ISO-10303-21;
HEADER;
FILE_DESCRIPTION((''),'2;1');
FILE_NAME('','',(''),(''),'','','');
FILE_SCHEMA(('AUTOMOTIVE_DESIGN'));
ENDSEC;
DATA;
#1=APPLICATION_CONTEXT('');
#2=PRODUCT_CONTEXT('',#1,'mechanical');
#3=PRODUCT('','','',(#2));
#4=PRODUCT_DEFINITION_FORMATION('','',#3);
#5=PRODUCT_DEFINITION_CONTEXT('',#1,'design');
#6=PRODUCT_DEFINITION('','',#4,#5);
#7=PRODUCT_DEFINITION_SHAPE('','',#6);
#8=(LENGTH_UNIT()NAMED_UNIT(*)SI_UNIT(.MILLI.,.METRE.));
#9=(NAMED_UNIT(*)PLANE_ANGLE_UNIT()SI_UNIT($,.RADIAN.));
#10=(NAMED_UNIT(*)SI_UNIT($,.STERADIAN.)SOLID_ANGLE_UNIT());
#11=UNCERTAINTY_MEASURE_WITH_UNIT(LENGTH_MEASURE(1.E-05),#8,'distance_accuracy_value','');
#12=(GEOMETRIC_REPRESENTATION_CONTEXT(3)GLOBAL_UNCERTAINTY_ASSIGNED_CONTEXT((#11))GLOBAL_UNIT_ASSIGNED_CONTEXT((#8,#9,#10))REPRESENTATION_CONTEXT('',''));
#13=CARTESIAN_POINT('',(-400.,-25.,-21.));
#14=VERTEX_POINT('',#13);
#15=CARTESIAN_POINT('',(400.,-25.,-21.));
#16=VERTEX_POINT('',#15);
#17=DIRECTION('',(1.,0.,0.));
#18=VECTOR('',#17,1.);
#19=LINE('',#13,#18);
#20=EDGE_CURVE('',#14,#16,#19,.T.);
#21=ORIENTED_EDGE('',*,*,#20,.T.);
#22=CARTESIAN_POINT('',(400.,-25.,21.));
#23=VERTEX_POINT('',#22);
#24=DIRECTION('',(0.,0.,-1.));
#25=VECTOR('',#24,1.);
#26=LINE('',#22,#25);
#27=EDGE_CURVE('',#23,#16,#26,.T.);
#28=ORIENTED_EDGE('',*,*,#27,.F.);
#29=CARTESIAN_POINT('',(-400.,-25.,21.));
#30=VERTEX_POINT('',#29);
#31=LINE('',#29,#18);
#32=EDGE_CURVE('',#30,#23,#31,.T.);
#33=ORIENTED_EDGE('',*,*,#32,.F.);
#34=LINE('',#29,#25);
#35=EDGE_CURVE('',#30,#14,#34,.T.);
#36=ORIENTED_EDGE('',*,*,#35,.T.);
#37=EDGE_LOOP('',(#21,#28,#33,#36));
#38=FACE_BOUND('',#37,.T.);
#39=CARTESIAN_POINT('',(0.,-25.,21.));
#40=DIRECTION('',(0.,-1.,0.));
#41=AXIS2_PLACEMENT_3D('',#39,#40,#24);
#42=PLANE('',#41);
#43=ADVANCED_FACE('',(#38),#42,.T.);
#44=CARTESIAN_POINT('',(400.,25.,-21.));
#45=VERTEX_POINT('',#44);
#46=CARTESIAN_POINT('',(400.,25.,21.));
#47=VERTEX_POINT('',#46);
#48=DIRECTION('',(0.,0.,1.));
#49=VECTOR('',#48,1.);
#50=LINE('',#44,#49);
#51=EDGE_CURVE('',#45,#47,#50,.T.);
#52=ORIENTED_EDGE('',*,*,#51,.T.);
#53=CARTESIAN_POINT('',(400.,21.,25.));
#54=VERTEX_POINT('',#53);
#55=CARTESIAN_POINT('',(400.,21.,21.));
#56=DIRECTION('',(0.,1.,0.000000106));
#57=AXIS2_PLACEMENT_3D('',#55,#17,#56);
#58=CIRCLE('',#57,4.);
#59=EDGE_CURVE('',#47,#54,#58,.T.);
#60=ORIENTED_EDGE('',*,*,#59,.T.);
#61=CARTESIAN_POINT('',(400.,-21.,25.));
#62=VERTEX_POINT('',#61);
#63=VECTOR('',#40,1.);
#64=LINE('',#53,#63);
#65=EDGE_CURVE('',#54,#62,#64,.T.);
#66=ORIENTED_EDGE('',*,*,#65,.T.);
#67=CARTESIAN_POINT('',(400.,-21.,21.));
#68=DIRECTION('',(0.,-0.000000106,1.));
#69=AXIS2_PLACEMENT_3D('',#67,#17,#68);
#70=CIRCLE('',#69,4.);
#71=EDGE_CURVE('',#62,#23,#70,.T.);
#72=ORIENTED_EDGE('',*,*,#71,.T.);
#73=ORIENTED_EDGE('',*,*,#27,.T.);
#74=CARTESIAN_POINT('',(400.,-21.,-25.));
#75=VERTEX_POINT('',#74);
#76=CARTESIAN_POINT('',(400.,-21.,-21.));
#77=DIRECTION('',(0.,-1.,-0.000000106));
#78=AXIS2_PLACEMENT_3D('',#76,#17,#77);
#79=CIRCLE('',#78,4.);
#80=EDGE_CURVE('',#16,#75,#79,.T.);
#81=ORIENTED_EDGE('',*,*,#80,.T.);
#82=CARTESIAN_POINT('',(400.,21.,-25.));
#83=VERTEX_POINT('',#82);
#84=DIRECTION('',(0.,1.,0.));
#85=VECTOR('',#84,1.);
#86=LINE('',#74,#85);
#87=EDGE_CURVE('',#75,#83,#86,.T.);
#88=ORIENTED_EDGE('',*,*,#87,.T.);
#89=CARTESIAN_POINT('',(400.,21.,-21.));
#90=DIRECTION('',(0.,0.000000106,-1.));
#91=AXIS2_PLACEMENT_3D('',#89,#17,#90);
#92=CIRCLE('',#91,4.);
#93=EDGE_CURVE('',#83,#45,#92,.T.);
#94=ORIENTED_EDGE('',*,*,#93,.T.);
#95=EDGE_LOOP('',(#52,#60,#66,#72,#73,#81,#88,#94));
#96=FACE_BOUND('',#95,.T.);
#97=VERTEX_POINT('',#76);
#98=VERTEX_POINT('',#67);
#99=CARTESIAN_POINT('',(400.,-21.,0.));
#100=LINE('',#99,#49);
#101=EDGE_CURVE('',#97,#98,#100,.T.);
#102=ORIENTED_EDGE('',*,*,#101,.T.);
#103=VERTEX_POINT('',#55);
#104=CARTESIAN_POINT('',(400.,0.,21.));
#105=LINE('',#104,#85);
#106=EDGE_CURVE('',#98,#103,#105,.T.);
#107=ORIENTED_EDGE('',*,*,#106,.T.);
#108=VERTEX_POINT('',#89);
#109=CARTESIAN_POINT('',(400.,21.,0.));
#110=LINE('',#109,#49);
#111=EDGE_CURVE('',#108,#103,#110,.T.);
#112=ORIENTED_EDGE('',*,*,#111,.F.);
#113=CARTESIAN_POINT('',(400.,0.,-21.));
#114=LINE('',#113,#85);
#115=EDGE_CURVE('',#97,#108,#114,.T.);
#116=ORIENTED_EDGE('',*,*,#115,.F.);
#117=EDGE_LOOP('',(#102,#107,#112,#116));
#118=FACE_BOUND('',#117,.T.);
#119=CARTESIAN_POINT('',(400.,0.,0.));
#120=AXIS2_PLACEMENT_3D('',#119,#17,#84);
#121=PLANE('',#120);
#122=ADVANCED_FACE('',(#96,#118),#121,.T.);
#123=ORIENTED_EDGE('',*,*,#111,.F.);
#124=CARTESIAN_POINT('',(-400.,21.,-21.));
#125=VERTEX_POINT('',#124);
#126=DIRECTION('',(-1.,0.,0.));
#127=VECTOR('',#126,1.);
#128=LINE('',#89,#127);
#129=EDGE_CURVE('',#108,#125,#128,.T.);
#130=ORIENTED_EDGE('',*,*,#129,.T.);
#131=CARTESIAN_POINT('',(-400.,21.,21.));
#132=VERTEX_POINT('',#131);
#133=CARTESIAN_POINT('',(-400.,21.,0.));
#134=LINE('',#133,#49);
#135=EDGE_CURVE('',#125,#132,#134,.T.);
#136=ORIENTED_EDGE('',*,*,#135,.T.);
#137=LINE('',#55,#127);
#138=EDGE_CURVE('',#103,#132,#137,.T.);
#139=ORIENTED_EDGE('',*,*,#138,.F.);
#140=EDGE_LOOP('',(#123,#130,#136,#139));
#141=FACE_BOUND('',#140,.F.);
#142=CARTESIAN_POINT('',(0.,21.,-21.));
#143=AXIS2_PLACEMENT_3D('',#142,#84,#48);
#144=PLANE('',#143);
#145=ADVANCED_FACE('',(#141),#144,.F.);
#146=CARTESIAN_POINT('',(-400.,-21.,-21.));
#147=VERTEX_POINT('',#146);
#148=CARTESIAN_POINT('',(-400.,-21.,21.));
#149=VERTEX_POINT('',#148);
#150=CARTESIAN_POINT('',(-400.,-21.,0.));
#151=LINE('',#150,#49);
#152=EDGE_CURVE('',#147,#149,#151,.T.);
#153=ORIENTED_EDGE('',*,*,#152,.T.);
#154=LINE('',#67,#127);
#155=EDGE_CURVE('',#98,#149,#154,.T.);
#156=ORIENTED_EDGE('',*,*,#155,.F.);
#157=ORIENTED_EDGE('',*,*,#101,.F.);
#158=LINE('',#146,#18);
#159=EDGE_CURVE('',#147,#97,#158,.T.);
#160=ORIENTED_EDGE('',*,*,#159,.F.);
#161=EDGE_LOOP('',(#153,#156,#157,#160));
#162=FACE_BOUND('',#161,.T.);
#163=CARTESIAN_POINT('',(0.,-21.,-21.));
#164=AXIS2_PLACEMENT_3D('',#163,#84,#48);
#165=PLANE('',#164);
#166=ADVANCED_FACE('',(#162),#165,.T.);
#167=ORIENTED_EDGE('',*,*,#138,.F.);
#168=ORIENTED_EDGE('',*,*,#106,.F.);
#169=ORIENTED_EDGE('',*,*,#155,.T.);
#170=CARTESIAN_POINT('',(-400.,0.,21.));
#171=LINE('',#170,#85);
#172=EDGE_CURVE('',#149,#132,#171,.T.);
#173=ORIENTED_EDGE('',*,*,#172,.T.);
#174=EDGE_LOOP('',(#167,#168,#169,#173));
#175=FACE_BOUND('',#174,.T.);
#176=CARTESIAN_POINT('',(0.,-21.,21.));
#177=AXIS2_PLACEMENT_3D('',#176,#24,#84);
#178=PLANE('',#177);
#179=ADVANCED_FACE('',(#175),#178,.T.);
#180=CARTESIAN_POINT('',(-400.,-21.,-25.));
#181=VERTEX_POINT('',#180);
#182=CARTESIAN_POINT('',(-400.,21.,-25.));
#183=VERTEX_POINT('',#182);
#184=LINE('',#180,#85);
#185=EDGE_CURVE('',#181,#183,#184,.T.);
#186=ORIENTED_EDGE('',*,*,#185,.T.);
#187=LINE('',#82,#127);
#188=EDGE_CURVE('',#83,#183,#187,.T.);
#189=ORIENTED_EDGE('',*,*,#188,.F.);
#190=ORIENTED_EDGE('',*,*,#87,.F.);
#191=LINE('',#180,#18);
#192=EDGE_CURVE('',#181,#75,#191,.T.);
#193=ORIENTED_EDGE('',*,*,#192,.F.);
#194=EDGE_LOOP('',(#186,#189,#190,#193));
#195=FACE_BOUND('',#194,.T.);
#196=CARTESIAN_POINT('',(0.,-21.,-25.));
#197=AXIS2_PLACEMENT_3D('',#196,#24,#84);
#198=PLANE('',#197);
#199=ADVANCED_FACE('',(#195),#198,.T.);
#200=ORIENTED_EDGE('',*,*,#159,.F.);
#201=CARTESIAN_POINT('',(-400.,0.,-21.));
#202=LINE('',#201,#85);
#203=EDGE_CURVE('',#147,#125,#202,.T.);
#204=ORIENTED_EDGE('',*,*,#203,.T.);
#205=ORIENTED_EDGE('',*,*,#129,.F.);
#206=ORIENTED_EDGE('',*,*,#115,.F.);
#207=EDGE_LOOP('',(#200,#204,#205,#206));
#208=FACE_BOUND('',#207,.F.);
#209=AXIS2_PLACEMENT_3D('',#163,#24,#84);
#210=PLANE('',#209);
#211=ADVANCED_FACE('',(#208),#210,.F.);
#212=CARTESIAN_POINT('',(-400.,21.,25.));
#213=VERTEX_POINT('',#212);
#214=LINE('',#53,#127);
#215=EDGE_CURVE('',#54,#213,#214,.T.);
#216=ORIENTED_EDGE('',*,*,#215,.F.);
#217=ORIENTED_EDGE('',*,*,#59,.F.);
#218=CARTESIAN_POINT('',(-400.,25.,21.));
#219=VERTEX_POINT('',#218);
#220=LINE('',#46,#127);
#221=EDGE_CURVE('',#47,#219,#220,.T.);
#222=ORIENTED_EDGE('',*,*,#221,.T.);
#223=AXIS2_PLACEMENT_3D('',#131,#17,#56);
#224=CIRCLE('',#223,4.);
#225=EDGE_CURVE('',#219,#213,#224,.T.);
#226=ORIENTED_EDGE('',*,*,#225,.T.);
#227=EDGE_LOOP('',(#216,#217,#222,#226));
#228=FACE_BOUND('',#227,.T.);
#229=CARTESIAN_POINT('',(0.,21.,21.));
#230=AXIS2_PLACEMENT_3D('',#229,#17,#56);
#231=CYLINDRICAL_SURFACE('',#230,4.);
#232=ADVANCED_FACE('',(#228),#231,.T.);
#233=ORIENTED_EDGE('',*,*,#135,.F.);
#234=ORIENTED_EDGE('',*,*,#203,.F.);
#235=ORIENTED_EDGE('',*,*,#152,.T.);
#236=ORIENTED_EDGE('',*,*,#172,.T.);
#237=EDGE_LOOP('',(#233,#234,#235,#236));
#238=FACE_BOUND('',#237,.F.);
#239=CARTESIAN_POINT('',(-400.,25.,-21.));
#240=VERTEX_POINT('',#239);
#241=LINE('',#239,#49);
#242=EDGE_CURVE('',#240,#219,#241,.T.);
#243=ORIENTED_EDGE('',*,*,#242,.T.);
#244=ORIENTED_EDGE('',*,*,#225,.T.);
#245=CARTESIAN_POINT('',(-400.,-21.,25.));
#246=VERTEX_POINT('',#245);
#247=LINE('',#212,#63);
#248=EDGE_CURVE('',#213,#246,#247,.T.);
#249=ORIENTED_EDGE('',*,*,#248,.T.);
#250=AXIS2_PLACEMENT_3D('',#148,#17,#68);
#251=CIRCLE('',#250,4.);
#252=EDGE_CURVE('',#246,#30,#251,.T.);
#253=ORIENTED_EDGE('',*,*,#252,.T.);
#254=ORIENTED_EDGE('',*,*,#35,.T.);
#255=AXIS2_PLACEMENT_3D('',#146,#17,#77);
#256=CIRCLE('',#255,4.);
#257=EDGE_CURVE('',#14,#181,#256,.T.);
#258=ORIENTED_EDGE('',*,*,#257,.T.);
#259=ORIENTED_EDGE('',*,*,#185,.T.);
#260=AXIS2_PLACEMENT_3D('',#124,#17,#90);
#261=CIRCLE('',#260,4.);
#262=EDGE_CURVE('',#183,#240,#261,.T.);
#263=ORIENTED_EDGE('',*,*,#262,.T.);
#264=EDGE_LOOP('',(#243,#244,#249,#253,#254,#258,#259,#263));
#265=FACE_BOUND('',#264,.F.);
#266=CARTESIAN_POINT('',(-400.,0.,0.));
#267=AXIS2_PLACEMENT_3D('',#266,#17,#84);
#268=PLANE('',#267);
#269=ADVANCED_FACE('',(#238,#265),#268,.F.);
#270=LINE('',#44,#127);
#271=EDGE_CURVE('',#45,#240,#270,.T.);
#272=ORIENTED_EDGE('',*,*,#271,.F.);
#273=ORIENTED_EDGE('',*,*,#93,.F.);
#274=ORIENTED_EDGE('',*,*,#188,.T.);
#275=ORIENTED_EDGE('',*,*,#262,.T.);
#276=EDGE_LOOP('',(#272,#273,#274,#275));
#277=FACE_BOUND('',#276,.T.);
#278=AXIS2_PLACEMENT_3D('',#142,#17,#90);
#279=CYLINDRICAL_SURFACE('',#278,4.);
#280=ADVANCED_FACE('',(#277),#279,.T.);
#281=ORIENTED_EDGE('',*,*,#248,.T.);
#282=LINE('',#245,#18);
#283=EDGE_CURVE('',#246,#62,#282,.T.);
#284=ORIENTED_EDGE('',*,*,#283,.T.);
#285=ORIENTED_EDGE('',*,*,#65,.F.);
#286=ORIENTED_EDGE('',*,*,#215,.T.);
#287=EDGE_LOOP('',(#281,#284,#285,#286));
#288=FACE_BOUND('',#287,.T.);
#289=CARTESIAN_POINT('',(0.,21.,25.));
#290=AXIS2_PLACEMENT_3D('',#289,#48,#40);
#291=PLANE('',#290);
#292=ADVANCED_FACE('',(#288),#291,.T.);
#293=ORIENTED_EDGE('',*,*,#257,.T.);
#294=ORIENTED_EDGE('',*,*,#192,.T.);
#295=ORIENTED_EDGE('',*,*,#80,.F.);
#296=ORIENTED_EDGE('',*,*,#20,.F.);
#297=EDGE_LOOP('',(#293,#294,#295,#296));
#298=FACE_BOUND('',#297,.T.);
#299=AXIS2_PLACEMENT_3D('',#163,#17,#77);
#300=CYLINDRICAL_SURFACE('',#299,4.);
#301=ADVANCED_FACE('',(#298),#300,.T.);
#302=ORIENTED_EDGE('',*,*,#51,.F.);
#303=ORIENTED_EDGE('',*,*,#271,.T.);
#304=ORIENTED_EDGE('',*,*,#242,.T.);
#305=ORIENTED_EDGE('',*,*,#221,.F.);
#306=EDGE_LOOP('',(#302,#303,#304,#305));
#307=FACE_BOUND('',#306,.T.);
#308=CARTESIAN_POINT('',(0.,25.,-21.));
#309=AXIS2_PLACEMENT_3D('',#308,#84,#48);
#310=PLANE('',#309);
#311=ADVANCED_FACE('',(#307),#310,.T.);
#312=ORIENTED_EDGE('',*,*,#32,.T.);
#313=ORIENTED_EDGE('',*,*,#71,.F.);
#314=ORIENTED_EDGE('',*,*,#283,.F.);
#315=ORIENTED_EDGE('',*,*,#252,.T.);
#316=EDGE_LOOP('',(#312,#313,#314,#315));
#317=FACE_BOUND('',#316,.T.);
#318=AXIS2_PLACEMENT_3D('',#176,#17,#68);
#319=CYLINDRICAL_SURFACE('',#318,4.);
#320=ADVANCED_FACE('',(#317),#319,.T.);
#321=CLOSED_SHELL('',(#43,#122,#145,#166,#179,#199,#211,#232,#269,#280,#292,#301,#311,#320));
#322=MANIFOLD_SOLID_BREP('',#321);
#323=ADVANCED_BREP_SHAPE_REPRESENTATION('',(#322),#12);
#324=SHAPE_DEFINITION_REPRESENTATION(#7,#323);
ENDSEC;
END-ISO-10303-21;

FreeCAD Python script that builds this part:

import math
import FreeCAD as App
import Part
import Sketcher
from FreeCAD import Vector

doc = App.newDocument("Part")
params = doc.addObject("Spreadsheet::Sheet", "Params")
for row, (alias, value) in enumerate([
    ("sketch1_radius", "4 mm"),
    ("sketch1_width", "42 mm"),
    ("pad1_length", "800 mm"),
], start=1):
    params.set(f"A{row}", alias)
    params.set(f"B{row}", "=" + value)
    params.setAlias(f"B{row}", alias)

body = doc.addObject("PartDesign::Body", "Body")

# Sketch on YZ plane
sketch1 = body.newObject("Sketcher::SketchObject", "Sketch")
sketch1.AttachmentSupport = (doc.getObject("YZ_Plane"), [""])
sketch1.MapMode = "FlatFace"
sketch1.addGeometry([
    Part.LineSegment(Vector(21, 25, 0), Vector(-21, 25, 0)),  # 0
    Part.ArcOfCircle(Part.Circle(Vector(-21, 21, 0), Vector(0, 0, 1), 4), math.radians(90), math.radians(180)),  # 1
    Part.LineSegment(Vector(-25, 21, 0), Vector(-25, -21, 0)),  # 2
    Part.ArcOfCircle(Part.Circle(Vector(-21, -21, 0), Vector(0, 0, 1), 4), math.radians(-180), math.radians(-90)),  # 3
    Part.LineSegment(Vector(-21, -25, 0), Vector(21, -25, 0)),  # 4
    Part.ArcOfCircle(Part.Circle(Vector(21, -21, 0), Vector(0, 0, 1), 4), math.radians(-90), math.radians(0)),  # 5
    Part.LineSegment(Vector(25, -21, 0), Vector(25, 21, 0)),  # 6
    Part.ArcOfCircle(Part.Circle(Vector(21, 21, 0), Vector(0, 0, 1), 4), math.radians(0), math.radians(90)),  # 7
    Part.LineSegment(Vector(21, -21, 0), Vector(-21, -21, 0)),  # 8
    Part.LineSegment(Vector(-21, -21, 0), Vector(-21, 21, 0)),  # 9
    Part.LineSegment(Vector(-21, 21, 0), Vector(21, 21, 0)),  # 10
    Part.LineSegment(Vector(21, 21, 0), Vector(21, -21, 0)),  # 11
], False)
sketch1.addConstraint([
    Sketcher.Constraint("Tangent", 0, 2, 1, 1),
    Sketcher.Constraint("Tangent", 1, 2, 2, 1),
    Sketcher.Constraint("Tangent", 2, 2, 3, 1),
    Sketcher.Constraint("Tangent", 3, 2, 4, 1),
    Sketcher.Constraint("Tangent", 4, 2, 5, 1),
    Sketcher.Constraint("Tangent", 5, 2, 6, 1),
    Sketcher.Constraint("Tangent", 6, 2, 7, 1),
    Sketcher.Constraint("Tangent", 7, 2, 0, 1),
    Sketcher.Constraint("Coincident", 8, 2, 9, 1),
    Sketcher.Constraint("Coincident", 9, 2, 10, 1),
    Sketcher.Constraint("Coincident", 10, 2, 11, 1),
    Sketcher.Constraint("Coincident", 11, 2, 8, 1),
    Sketcher.Constraint("Horizontal", 0),
    Sketcher.Constraint("Vertical", 2),
    Sketcher.Constraint("Horizontal", 4),
    Sketcher.Constraint("Vertical", 6),
    Sketcher.Constraint("Horizontal", 8),
    Sketcher.Constraint("Vertical", 9),
    Sketcher.Constraint("Horizontal", 10),
    Sketcher.Constraint("Vertical", 11),
    Sketcher.Constraint("Coincident", 8, 2, 3, 3),
    Sketcher.Constraint("Coincident", 9, 2, 1, 3),
    Sketcher.Constraint("Coincident", 10, 2, 7, 3),
    Sketcher.Constraint("Equal", 3, 5),
    Sketcher.Constraint("Symmetric", 1, 3, 5, 3, -1, 1),
    Sketcher.Constraint("Equal", 10, 2),
    Sketcher.Constraint("Radius", 1, 4.0),
    Sketcher.Constraint("DistanceX", 0, 2, 0, 1, 42.0),
])
sketch1.setExpression("Constraints[26]", "Params.sketch1_radius")
sketch1.setExpression("Constraints[27]", "Params.sketch1_width")
pad1 = body.newObject("PartDesign::Pad", "Pad")
pad1.Profile = sketch1
pad1.setExpression("Length", "Params.pad1_length")
pad1.Midplane = True

doc.recompute()
